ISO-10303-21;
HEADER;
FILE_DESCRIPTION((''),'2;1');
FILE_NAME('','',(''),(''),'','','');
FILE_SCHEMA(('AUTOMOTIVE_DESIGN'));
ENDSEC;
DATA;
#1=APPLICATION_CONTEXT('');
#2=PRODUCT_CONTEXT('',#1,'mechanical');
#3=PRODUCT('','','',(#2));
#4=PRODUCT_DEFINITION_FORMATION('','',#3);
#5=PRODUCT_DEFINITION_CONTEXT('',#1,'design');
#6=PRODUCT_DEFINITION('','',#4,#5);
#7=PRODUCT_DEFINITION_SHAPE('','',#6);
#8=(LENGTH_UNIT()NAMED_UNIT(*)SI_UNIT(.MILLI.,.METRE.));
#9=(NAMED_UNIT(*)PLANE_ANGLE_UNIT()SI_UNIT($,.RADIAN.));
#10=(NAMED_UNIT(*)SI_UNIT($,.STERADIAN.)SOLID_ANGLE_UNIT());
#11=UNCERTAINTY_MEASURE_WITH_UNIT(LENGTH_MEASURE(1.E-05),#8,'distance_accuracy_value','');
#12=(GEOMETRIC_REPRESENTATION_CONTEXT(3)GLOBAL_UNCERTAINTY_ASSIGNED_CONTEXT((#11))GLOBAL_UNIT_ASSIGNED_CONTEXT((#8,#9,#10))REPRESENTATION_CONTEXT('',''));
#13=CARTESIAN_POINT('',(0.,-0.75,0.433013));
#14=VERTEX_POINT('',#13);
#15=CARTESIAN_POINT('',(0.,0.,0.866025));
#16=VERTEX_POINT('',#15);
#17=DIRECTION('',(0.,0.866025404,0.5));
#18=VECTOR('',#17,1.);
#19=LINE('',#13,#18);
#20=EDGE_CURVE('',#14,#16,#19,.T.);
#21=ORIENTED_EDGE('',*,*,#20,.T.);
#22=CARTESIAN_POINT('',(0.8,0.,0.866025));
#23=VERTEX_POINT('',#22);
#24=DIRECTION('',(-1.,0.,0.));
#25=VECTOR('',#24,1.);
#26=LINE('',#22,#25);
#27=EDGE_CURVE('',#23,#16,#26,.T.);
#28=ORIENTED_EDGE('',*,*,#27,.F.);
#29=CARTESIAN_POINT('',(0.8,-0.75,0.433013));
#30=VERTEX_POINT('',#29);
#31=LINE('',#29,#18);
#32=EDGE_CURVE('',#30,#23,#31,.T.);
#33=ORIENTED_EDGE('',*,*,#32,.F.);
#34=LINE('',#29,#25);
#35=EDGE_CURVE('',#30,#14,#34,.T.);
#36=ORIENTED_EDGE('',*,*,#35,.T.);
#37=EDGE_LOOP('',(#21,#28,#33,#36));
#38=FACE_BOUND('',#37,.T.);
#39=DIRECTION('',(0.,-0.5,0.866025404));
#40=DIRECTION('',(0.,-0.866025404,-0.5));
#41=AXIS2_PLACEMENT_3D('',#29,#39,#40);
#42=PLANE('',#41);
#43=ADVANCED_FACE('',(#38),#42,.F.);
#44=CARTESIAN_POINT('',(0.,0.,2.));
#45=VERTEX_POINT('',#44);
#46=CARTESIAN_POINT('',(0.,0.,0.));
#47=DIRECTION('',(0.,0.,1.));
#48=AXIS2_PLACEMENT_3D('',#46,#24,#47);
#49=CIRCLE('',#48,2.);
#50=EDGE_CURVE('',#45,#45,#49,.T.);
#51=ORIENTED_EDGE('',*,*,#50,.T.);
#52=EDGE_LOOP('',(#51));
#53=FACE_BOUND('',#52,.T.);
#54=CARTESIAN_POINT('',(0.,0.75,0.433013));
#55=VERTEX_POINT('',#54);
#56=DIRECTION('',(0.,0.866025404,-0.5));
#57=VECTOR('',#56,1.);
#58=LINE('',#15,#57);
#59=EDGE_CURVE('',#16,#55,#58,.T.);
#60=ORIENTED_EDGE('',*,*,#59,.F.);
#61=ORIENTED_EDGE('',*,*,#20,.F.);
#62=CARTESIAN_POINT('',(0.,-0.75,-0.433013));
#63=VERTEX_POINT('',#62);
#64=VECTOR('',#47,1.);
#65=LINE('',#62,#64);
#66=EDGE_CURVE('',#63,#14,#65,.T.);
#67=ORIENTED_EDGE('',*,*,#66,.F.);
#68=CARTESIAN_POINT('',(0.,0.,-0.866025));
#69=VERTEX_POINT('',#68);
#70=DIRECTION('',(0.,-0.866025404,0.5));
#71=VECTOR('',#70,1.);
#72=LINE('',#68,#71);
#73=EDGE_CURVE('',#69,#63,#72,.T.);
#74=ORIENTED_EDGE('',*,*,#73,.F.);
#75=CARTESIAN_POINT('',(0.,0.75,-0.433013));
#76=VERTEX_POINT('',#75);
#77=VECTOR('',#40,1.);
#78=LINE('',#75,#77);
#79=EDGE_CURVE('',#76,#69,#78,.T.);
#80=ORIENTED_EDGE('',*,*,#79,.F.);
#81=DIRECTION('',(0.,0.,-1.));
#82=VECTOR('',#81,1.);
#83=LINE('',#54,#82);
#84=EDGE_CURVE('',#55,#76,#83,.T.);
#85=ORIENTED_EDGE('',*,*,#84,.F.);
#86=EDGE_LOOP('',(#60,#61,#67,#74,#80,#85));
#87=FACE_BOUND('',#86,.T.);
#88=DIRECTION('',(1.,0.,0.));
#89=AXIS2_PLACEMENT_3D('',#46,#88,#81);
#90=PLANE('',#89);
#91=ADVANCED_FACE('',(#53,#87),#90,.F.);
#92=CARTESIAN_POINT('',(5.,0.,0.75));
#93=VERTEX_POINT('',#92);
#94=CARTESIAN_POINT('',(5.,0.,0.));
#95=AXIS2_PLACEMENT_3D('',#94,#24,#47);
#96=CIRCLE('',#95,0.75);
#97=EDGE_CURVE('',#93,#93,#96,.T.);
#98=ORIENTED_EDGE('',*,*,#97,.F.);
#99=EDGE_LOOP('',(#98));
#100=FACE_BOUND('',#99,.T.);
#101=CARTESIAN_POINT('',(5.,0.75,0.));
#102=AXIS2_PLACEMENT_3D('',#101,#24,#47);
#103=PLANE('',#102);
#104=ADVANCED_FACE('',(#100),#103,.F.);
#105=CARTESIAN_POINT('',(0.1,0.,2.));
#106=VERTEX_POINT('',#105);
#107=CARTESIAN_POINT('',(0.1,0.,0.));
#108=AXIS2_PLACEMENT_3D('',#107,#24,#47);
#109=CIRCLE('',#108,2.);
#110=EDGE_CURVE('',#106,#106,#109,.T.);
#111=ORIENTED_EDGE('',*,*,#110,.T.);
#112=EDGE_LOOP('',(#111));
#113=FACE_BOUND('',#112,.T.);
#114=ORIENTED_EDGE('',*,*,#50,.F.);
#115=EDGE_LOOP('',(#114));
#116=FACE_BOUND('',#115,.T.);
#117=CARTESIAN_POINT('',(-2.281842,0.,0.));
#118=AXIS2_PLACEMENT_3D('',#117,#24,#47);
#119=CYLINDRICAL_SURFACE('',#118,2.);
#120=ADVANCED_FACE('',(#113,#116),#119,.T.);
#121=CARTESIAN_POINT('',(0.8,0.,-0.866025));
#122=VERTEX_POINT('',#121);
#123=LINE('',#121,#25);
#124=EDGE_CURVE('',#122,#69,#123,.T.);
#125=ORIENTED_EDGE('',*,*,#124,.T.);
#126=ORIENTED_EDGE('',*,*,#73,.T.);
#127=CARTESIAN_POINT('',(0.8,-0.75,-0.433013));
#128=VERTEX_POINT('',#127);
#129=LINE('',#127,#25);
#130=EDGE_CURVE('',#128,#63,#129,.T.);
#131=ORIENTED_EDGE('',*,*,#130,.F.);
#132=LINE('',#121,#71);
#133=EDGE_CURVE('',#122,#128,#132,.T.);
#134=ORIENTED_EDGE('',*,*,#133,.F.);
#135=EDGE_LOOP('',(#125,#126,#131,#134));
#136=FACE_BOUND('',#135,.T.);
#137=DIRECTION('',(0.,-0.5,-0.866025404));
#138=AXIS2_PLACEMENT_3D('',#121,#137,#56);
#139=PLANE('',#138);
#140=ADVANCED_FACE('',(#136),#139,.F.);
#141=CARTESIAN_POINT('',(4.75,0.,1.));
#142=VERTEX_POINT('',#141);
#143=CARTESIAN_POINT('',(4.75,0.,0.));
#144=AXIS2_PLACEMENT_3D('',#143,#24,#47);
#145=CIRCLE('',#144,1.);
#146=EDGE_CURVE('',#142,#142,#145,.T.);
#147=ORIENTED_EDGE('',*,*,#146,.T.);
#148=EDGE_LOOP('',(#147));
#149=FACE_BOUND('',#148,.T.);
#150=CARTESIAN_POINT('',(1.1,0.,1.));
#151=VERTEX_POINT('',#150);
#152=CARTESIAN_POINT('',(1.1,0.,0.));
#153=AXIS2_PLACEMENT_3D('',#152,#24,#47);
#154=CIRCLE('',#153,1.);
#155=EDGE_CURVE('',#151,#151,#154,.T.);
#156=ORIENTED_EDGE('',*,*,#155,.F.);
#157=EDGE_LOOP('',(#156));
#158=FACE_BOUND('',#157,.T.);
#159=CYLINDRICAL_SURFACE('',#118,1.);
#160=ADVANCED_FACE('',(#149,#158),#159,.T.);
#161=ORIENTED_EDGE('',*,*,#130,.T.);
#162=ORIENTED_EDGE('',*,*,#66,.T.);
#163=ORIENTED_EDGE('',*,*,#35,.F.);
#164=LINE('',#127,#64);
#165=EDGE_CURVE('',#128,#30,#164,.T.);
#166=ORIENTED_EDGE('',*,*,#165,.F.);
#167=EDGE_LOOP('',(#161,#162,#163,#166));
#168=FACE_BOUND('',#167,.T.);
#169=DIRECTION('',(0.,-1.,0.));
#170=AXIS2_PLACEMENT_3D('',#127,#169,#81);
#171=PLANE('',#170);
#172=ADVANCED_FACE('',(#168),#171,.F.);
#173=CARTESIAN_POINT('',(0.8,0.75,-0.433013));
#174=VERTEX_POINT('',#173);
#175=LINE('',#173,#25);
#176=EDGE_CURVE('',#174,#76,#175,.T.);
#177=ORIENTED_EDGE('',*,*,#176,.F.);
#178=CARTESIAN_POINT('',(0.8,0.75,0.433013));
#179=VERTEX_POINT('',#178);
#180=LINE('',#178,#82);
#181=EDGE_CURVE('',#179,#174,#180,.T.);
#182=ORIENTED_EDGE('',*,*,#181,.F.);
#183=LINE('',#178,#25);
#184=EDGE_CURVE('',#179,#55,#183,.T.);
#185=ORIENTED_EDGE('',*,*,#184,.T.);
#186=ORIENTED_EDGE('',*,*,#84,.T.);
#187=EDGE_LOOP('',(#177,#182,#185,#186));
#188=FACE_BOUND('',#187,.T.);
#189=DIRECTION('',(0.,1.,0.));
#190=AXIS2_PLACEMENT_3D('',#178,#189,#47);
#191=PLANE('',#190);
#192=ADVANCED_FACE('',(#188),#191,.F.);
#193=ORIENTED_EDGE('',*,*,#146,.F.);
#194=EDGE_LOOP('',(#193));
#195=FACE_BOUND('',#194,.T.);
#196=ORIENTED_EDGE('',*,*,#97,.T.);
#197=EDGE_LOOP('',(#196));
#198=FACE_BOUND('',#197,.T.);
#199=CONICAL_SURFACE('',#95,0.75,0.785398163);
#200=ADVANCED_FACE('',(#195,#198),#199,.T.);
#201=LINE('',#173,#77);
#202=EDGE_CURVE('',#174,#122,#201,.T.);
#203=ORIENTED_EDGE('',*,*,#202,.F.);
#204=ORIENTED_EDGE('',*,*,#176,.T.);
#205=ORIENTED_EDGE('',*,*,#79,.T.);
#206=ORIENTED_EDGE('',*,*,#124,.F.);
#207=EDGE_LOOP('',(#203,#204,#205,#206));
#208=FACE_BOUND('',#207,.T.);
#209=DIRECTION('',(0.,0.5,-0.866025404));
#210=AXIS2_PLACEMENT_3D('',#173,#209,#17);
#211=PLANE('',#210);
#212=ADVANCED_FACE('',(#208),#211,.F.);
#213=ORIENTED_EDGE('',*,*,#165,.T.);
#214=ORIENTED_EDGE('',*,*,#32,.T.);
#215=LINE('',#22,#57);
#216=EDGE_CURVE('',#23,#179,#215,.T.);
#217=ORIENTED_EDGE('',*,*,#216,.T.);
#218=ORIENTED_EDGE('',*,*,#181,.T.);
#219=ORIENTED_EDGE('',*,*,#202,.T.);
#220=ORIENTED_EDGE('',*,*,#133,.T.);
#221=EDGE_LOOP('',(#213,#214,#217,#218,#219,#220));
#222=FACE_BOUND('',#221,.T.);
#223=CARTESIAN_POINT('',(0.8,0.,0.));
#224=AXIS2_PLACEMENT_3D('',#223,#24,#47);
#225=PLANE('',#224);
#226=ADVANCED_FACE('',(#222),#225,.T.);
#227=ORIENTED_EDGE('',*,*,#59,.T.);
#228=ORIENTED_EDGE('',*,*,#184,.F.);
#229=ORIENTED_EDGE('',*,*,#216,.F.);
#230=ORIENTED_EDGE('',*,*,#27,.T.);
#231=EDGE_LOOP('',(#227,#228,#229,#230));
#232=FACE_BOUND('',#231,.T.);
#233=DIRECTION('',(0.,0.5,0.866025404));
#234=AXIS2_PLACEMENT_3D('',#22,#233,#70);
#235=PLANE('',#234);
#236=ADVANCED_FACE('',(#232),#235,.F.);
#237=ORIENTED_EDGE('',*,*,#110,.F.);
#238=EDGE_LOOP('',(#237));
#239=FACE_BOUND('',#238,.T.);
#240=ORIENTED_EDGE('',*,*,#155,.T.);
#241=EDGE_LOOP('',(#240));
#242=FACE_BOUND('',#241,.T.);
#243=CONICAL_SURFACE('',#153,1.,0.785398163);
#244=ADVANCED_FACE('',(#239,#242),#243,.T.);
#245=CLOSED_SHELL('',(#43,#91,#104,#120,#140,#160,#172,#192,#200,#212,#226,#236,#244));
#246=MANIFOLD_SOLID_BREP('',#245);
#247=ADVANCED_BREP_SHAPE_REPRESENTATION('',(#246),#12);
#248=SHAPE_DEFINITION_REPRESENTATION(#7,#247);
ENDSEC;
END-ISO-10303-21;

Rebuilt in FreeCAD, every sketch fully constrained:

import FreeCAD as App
import Part
import Sketcher
from FreeCAD import Vector
Q = App.Units.Quantity

doc = App.newDocument("Part")
body = doc.addObject("PartDesign::Body", "Body")

# Sketch on XY plane
sketch1 = doc.addObject("Sketcher::SketchObject", "Sketch")
body.addObject(sketch1)
sketch1.AttachmentSupport = (doc.XY_Plane, [""])
sketch1.MapMode = "FlatFace"
sketch1.addGeometry(Part.LineSegment(Vector(0, 2, 0), Vector(0, 0, 0)), False)
sketch1.addGeometry(Part.LineSegment(Vector(0, 0, 0), Vector(5, 0, 0)), False)
sketch1.addGeometry(Part.LineSegment(Vector(5, 0, 0), Vector(5, 0.75, 0)), False)
sketch1.addGeometry(Part.LineSegment(Vector(5, 0.75, 0), Vector(4.75, 1, 0)), False)
sketch1.addGeometry(Part.LineSegment(Vector(4.75, 1, 0), Vector(1.1, 1, 0)), False)
sketch1.addGeometry(Part.LineSegment(Vector(1.1, 1, 0), Vector(0.1, 2, 0)), False)
sketch1.addGeometry(Part.LineSegment(Vector(0.1, 2, 0), Vector(0, 2, 0)), False)
sketch1.addConstraint(Sketcher.Constraint("Coincident", 0, 2, 1, 1))
sketch1.addConstraint(Sketcher.Constraint("Coincident", 1, 2, 2, 1))
sketch1.addConstraint(Sketcher.Constraint("Coincident", 2, 2, 3, 1))
sketch1.addConstraint(Sketcher.Constraint("Coincident", 3, 2, 4, 1))
sketch1.addConstraint(Sketcher.Constraint("Coincident", 4, 2, 5, 1))
sketch1.addConstraint(Sketcher.Constraint("Coincident", 5, 2, 6, 1))
sketch1.addConstraint(Sketcher.Constraint("Coincident", 6, 2, 0, 1))
sketch1.addConstraint(Sketcher.Constraint("Vertical", 0))
sketch1.addConstraint(Sketcher.Constraint("Horizontal", 1))
sketch1.addConstraint(Sketcher.Constraint("Vertical", 2))
sketch1.addConstraint(Sketcher.Constraint("Horizontal", 4))
sketch1.addConstraint(Sketcher.Constraint("Horizontal", 6))
sketch1.addConstraint(Sketcher.Constraint("Coincident", 0, 2, -1, 1))
sketch1.addConstraint(Sketcher.Constraint("Parallel", 3, 5))
sketch1.addConstraint(Sketcher.Constraint("DistanceX", 1, 1, 1, 2, 5.0))
sketch1.addConstraint(Sketcher.Constraint("DistanceY", 0, 2, 0, 1, 2.0))
sketch1.addConstraint(Sketcher.Constraint("Angle", 3, Q("135 deg")))
sketch1.addConstraint(Sketcher.Constraint("DistanceX", 6, 2, 6, 1, 0.1))
sketch1.addConstraint(Sketcher.Constraint("DistanceY", -1, 1, 3, 2, 1.0))
sketch1.addConstraint(Sketcher.Constraint("DistanceX", 4, 2, 4, 1, 3.65))
revolution = doc.addObject("PartDesign::Revolution", "Revolution")
body.addObject(revolution)
revolution.Profile = sketch1
revolution.ReferenceAxis = (sketch1, ["H_Axis"])
revolution.Angle = 360

# Sketch on YZ plane
sketch2 = doc.addObject("Sketcher::SketchObject", "Sketch001")
body.addObject(sketch2)
sketch2.AttachmentSupport = (doc.YZ_Plane, [""])
sketch2.MapMode = "FlatFace"
sketch2.addGeometry(Part.LineSegment(Vector(-0.8, 0.4, 0), Vector(0, 0.9, 0)), False)
sketch2.addGeometry(Part.LineSegment(Vector(0, 0.9, 0), Vector(0.8, 0.4, 0)), False)
sketch2.addGeometry(Part.LineSegment(Vector(0.8, 0.4, 0), Vector(0.8, -0.4, 0)), False)
sketch2.addGeometry(Part.LineSegment(Vector(0.8, -0.4, 0), Vector(0, -0.9, 0)), False)
sketch2.addGeometry(Part.LineSegment(Vector(0, -0.9, 0), Vector(-0.8, -0.4, 0)), False)
sketch2.addGeometry(Part.LineSegment(Vector(-0.8, -0.4, 0), Vector(-0.8, 0.4, 0)), False)
sketch2.addConstraint(Sketcher.Constraint("Coincident", 0, 2, 1, 1))
sketch2.addConstraint(Sketcher.Constraint("Coincident", 1, 2, 2, 1))
sketch2.addConstraint(Sketcher.Constraint("Coincident", 2, 2, 3, 1))
sketch2.addConstraint(Sketcher.Constraint("Coincident", 3, 2, 4, 1))
sketch2.addConstraint(Sketcher.Constraint("Coincident", 4, 2, 5, 1))
sketch2.addConstraint(Sketcher.Constraint("Coincident", 5, 2, 0, 1))
sketch2.addConstraint(Sketcher.Constraint("Vertical", 2))
sketch2.addConstraint(Sketcher.Constraint("Vertical", 5))
sketch2.addConstraint(Sketcher.Constraint("Symmetric", 0, 2, 3, 2, -1, 1))
sketch2.addConstraint(Sketcher.Constraint("Symmetric", 1, 2, 4, 2, -1, 1))
sketch2.addConstraint(Sketcher.Constraint("PointOnObject", 0, 2, -2))
sketch2.addConstraint(Sketcher.Constraint("Parallel", 0, 3))
sketch2.addConstraint(Sketcher.Constraint("Horizontal", 2, 2, 4, 2))
sketch2.addConstraint(Sketcher.Constraint("Angle", 0, Q("30 deg")))
sketch2.addConstraint(Sketcher.Constraint("DistanceX", 4, 2, 2, 2, 1.5))
sketch2.addConstraint(Sketcher.Constraint("DistanceY", 2, 2, 2, 1, 0.866025))
pocket1 = doc.addObject("PartDesign::Pocket", "Pocket")
body.addObject(pocket1)
pocket1.Profile = sketch2
pocket1.Length = 0.8
pocket1.Reversed = True

doc.recompute()
